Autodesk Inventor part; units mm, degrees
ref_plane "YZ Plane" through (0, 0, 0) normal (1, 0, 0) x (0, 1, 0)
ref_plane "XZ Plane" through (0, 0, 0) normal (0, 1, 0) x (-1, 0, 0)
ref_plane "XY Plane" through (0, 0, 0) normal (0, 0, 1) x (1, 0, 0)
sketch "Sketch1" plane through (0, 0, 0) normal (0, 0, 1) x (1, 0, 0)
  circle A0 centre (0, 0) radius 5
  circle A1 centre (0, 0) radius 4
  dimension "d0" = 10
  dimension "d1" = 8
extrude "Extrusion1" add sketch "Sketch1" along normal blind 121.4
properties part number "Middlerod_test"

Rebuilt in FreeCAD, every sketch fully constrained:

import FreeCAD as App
import Part
import Sketcher

V = App.Vector
Q = App.Units.Quantity

doc = App.newDocument("Part")
body = doc.addObject("PartDesign::Body", "Body")

# Sketch on XY plane
sketch1 = body.newObject("Sketcher::SketchObject", "Sketch")
sketch1.AttachmentSupport = (doc.getObject("XY_Plane"), [""])
sketch1.MapMode = "FlatFace"
sketch1.addGeometry([
    Part.Circle(V(0, 0, 0), V(0, 0, 1), 5),
    Part.Circle(V(0, 0, 0), V(0, 0, 1), 4),
], False)
sketch1.addConstraint([
    Sketcher.Constraint("Coincident", 0, 3, -1, 1),
    Sketcher.Constraint("Coincident", 1, 3, -1, 1),
    Sketcher.Constraint("Diameter", 0, Q("10 mm")),
    Sketcher.Constraint("Diameter", 1, Q("8 mm")),
])
pad1 = body.newObject("PartDesign::Pad", "Pad")
pad1.Profile = sketch1
pad1.Length = 121.4

doc.recompute()
